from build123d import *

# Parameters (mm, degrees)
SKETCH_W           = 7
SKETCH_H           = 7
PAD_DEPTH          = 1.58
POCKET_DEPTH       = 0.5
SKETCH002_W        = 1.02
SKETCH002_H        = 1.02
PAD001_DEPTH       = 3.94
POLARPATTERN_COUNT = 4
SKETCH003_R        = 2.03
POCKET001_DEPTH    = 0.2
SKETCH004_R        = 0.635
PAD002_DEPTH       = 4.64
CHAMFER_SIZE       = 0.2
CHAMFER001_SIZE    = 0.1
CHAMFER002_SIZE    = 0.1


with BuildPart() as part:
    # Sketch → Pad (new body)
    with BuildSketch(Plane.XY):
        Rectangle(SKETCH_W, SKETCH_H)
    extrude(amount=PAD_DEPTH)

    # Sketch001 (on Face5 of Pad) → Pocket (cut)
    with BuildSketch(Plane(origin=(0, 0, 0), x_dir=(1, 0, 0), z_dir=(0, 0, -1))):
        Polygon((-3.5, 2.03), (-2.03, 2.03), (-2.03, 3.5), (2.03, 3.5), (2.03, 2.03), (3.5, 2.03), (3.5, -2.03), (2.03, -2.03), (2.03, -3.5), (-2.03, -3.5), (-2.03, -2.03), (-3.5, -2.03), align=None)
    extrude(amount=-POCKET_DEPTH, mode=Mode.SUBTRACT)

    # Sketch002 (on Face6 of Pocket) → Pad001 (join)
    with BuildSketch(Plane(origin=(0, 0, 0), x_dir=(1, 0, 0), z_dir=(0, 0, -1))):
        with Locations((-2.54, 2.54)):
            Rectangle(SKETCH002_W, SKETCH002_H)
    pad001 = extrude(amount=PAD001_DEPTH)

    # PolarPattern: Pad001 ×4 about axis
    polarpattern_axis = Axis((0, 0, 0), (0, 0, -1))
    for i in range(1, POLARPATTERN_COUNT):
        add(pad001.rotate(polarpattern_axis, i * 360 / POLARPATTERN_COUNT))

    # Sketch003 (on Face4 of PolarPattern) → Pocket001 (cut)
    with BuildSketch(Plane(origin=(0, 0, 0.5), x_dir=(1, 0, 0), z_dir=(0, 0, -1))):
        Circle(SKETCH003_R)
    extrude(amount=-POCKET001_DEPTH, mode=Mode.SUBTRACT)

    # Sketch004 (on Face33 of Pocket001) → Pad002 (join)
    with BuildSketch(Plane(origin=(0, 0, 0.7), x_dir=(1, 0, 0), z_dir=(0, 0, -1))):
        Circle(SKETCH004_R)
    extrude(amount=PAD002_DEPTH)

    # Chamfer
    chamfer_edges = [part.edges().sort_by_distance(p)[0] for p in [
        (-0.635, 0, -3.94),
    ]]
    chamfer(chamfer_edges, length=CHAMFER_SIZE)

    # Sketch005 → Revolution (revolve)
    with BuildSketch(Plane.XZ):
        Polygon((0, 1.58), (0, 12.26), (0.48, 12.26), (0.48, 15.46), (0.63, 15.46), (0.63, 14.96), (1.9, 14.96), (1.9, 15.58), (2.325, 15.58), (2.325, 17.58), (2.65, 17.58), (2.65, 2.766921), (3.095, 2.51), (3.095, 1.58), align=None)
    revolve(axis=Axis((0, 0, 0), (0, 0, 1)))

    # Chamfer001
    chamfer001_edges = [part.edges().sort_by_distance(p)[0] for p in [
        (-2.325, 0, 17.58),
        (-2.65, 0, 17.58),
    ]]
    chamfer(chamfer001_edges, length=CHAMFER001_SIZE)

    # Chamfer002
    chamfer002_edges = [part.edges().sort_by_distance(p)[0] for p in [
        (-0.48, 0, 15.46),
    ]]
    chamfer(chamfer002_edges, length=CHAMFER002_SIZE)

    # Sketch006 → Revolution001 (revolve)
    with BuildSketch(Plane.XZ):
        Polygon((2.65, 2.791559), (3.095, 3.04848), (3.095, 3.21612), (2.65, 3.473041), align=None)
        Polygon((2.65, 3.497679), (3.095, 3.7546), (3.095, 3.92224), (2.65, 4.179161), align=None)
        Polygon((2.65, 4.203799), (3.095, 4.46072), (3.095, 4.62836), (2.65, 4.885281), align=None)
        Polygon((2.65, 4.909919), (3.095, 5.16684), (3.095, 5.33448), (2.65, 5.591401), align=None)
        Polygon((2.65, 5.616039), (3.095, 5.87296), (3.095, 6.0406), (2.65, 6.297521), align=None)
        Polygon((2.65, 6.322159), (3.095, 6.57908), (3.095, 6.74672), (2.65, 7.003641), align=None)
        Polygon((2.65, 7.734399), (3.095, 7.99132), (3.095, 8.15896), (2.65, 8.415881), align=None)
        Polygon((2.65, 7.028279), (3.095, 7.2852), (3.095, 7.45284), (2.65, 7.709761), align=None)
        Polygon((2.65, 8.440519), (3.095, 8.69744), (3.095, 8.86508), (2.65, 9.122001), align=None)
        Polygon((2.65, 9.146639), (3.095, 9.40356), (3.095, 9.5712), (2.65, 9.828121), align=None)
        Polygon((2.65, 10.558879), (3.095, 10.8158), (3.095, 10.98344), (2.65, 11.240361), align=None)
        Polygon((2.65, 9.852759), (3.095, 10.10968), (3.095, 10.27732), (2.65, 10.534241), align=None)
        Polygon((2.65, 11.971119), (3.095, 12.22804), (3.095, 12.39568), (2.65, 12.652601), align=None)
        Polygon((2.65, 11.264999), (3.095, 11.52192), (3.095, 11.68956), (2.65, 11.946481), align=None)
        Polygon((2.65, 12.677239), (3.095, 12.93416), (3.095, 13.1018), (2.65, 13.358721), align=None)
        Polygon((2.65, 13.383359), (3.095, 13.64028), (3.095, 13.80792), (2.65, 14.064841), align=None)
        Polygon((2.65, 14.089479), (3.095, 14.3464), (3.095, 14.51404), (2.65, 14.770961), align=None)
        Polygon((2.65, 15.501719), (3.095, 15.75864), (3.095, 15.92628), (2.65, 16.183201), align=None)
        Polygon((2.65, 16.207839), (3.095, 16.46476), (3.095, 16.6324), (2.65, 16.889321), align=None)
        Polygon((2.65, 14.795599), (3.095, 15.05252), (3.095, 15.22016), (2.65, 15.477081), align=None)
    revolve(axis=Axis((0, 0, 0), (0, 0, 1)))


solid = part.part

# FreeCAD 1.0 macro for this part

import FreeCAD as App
import Part
import Sketcher

V = App.Vector
Q = App.Units.Quantity


def edges_at(feature, points):
    """Names of the edges that pass closest to the given points."""
    edges = feature.Shape.Edges
    near = lambda p: min(range(len(edges)), key=lambda i: edges[i].distToShape(Part.Vertex(*p))[0])
    return sorted({f"Edge{near(p) + 1}" for p in points})


def add_polygon(sketch, points):
    """Adds a closed chain of lines whose ends are joined by coincident constraints."""
    first, n = sketch.GeometryCount, len(points)
    for a, b in zip(points, points[1:] + points[:1]):
        sketch.addGeometry(Part.LineSegment(App.Vector(*a, 0), App.Vector(*b, 0)), False)
    for i in range(n):
        sketch.addConstraint(Sketcher.Constraint("Coincident", first + i, 2, first + (i + 1) % n, 1))

doc = App.newDocument("Part")
params = doc.addObject("Spreadsheet::Sheet", "Params")
for row, (alias, value) in enumerate([
    ("sketch1_width", "7 mm"),
    ("pad1_length", "1.58 mm"),
    ("sketch2_width", "1.47 mm"),
    ("pocket1_length", "0.5 mm"),
    ("sketch3_width", "1.02 mm"),
    ("pad2_length", "3.94 mm"),
    ("sketch4_diameter", "4.06 mm"),
    ("pocket2_length", "0.2 mm"),
    ("sketch5_diameter", "1.27 mm"),
    ("pad3_length", "4.64 mm"),
    ("chamfer_size", "0.2 mm"),
    ("sketch6_height", "2 mm"),
    ("sketch6_height2", "0.5 mm"),
    ("sketch6_height3", "3.2 mm"),
    ("sketch6_width", "1.27 mm"),
    ("sketch6_width2", "0.15 mm"),
    ("revolution_angle", "360 deg"),
    ("chamfer2_size", "0.1 mm"),
    ("chamfer3_size", "0.1 mm"),
    ("revolution2_angle", "360 deg"),
], start=1):
    params.set(f"A{row}", alias)
    params.set(f"B{row}", "=" + value)
    params.setAlias(f"B{row}", alias)

body = doc.addObject("PartDesign::Body", "Body")

# Sketch on XY plane
sketch1 = doc.addObject("Sketcher::SketchObject", "Sketch")
body.addObject(sketch1)
sketch1.AttachmentSupport = (doc.XY_Plane, [""])
sketch1.MapMode = "FlatFace"
add_polygon(sketch1, [(-4, 4), (-4, -4), (4, -4), (4, 4)])  # lines 0-3
sketch1.addConstraint([
    Sketcher.Constraint("Vertical", 0),
    Sketcher.Constraint("Horizontal", 1),
    Sketcher.Constraint("Vertical", 2),
    Sketcher.Constraint("Horizontal", 3),
    Sketcher.Constraint("Symmetric", 0, 2, 2, 2, -1, 1),
    Sketcher.Constraint("Equal", 3, 0),
    Sketcher.Constraint("DistanceX", 1, 1, 1, 2, 7.0),
])
sketch1.setExpression("Constraints[10]", "Params.sketch1_width")
pad1 = doc.addObject("PartDesign::Pad", "Pad")
body.addObject(pad1)
pad1.Profile = sketch1
pad1.setExpression("Length", "Params.pad1_length")

# Sketch on XY plane
sketch2 = doc.addObject("Sketcher::SketchObject", "Sketch001")
body.addObject(sketch2)
sketch2.AttachmentSupport = (doc.XY_Plane, [""])
sketch2.MapMode = "FlatFace"
add_polygon(sketch2, [(-2, -2), (-3.5, -2), (-3.5, 2), (-2, 2), (-2, 3.5), (2, 3.5), (2, 2), (3.5, 2), (3.5, -2), (2, -2), (2, -3.5), (-2, -3.5)])  # lines 0-11
sketch2.addConstraint([
    Sketcher.Constraint("Horizontal", 0),
    Sketcher.Constraint("Vertical", 1),
    Sketcher.Constraint("Horizontal", 2),
    Sketcher.Constraint("Vertical", 3),
    Sketcher.Constraint("Horizontal", 4),
    Sketcher.Constraint("Vertical", 5),
    Sketcher.Constraint("Horizontal", 6),
    Sketcher.Constraint("Vertical", 7),
    Sketcher.Constraint("Horizontal", 8),
    Sketcher.Constraint("Vertical", 9),
    Sketcher.Constraint("Horizontal", 10),
    Sketcher.Constraint("Vertical", 11),
    Sketcher.Constraint("Symmetric", 0, 2, 6, 2, -1, 1),
    Sketcher.Constraint("Symmetric", 2, 2, 8, 2, -1, 1),
    Sketcher.Constraint("Symmetric", 4, 2, 10, 2, -1, 1),
    Sketcher.Constraint("Symmetric", 2, 2, 5, 2, -2),
    Sketcher.Constraint("Equal", 10, 1),
    Sketcher.Constraint("Equal", 8, 3),
    Sketcher.Constraint("DistanceX", 1, 2, 6, 2, 7.0),
    Sketcher.Constraint("DistanceX", 0, 2, 0, 1, 1.47),
])
sketch2.setExpression("Constraints[31]", "Params.sketch2_width")
pocket1 = doc.addObject("PartDesign::Pocket", "Pocket")
body.addObject(pocket1)
pocket1.Profile = sketch2
pocket1.setExpression("Length", "Params.pocket1_length")
pocket1.Reversed = True

# Sketch on XY plane
sketch3 = doc.addObject("Sketcher::SketchObject", "Sketch002")
body.addObject(sketch3)
sketch3.AttachmentSupport = (doc.XY_Plane, [""])
sketch3.MapMode = "FlatFace"
add_polygon(sketch3, [(-3, -3), (-3, -2), (-2, -2), (-2, -3)])  # lines 0-3
sketch3.addConstraint([
    Sketcher.Constraint("Vertical", 0),
    Sketcher.Constraint("Horizontal", 1),
    Sketcher.Constraint("Vertical", 2),
    Sketcher.Constraint("Horizontal", 3),
    Sketcher.Constraint("Equal", 3, 0),
    Sketcher.Constraint("DistanceX", 1, 1, 1, 2, 1.02),
    Sketcher.Constraint("DistanceX", 0, 2, -1, 1, 3.05),
    Sketcher.Constraint("DistanceY", 0, 2, -1, 1, 2.03),
])
sketch3.setExpression("Constraints[9]", "Params.sketch3_width")
pad2 = doc.addObject("PartDesign::Pad", "Pad001")
body.addObject(pad2)
pad2.Profile = sketch3
pad2.setExpression("Length", "Params.pad2_length")
pad2.Reversed = True
doc.recompute()

polarpattern = doc.addObject("PartDesign::PolarPattern", "PolarPattern")
body.addObject(polarpattern)
polarpattern.Originals = [pad2]
polarpattern.Axis = (doc.Z_Axis, [""])
polarpattern.Angle = 360
polarpattern.Occurrences = 4
body.Tip = polarpattern

# Sketch on XY plane
sketch4 = doc.addObject("Sketcher::SketchObject", "Sketch003")
body.addObject(sketch4)
sketch4.AttachmentSupport = (doc.XY_Plane, [""])
sketch4.MapMode = "FlatFace"
sketch4.AttachmentOffset = App.Placement(V(0, 0, 0.5), App.Rotation())
sketch4.addGeometry(Part.Circle(V(0, 0, 0), V(0, 0, 1), 2), False)
sketch4.addConstraint([
    Sketcher.Constraint("Coincident", 0, 3, -1, 1),
    Sketcher.Constraint("Diameter", 0, 4.06),
])
sketch4.setExpression("Constraints[1]", "Params.sketch4_diameter")
pocket2 = doc.addObject("PartDesign::Pocket", "Pocket001")
body.addObject(pocket2)
pocket2.Profile = sketch4
pocket2.setExpression("Length", "Params.pocket2_length")
pocket2.Reversed = True

# Sketch on XY plane
sketch5 = doc.addObject("Sketcher::SketchObject", "Sketch004")
body.addObject(sketch5)
sketch5.AttachmentSupport = (doc.XY_Plane, [""])
sketch5.MapMode = "FlatFace"
sketch5.AttachmentOffset = App.Placement(V(0, 0, 0.7), App.Rotation())
sketch5.addGeometry(Part.Circle(V(0, 0, 0), V(0, 0, 1), 0.6), False)
sketch5.addConstraint([
    Sketcher.Constraint("Coincident", 0, 3, -1, 1),
    Sketcher.Constraint("Diameter", 0, 1.27),
])
sketch5.setExpression("Constraints[1]", "Params.sketch5_diameter")
pad3 = doc.addObject("PartDesign::Pad", "Pad002")
body.addObject(pad3)
pad3.Profile = sketch5
pad3.setExpression("Length", "Params.pad3_length")
pad3.Reversed = True
doc.recompute()

chamfer = doc.addObject("PartDesign::Chamfer", "Chamfer")
body.addObject(chamfer)
chamfer.Base = (pad3, edges_at(pad3, [(-0.635, 0, -3.94)]))
chamfer.setExpression("Size", "Params.chamfer_size")

# Sketch on XZ plane
sketch6 = doc.addObject("Sketcher::SketchObject", "Sketch005")
body.addObject(sketch6)
sketch6.AttachmentSupport = (doc.XZ_Plane, [""])
sketch6.MapMode = "FlatFace"
add_polygon(sketch6, [(0, 12.26), (0, 1.58), (3.1, 1.58), (3.1, 2.51), (2.65, 2.77), (2.65, 17.58), (2.33, 17.58), (2.33, 15.58), (1.9, 15.58), (1.9, 14.96), (0.63, 14.96), (0.63, 15.46), (0.48, 15.46), (0.48, 12.26)])  # lines 0-13
sketch6.addConstraint([
    Sketcher.Constraint("Vertical", 0),
    Sketcher.Constraint("Horizontal", 1),
    Sketcher.Constraint("Vertical", 2),
    Sketcher.Constraint("Vertical", 4),
    Sketcher.Constraint("Horizontal", 5),
    Sketcher.Constraint("Vertical", 6),
    Sketcher.Constraint("Horizontal", 7),
    Sketcher.Constraint("Vertical", 8),
    Sketcher.Constraint("Horizontal", 9),
    Sketcher.Constraint("Vertical", 10),
    Sketcher.Constraint("Horizontal", 11),
    Sketcher.Constraint("Vertical", 12),
    Sketcher.Constraint("Horizontal", 13),
    Sketcher.Constraint("PointOnObject", 0, 2, -2),
    Sketcher.Constraint("DistanceY", 6, 2, 6, 1, 2.0),
    Sketcher.Constraint("Angle", 3, Q("149.999987 deg")),
    Sketcher.Constraint("DistanceY", 10, 1, 10, 2, 0.5),
    Sketcher.Constraint("DistanceY", 12, 2, 12, 1, 3.2),
    Sketcher.Constraint("DistanceY", 1, 2, 4, 2, 16.0),
    Sketcher.Constraint("DistanceX", 9, 2, 9, 1, 1.27),
    Sketcher.Constraint("DistanceX", 11, 2, 11, 1, 0.15),
    Sketcher.Constraint("DistanceX", 13, 2, 13, 1, 0.48),
    Sketcher.Constraint("DistanceY", 0, 2, 0, 1, 10.68),
    Sketcher.Constraint("DistanceY", 2, 1, 2, 2, 0.93),
    Sketcher.Constraint("DistanceX", 1, 1, 1, 2, 3.095),
    Sketcher.Constraint("DistanceX", 5, 2, 5, 1, 0.325),
    Sketcher.Constraint("DistanceX", 7, 2, 7, 1, 0.425),
    Sketcher.Constraint("DistanceY", -1, 1, 0, 2, 1.58),
])
sketch6.setExpression("Constraints[28]", "Params.sketch6_height")
sketch6.setExpression("Constraints[30]", "Params.sketch6_height2")
sketch6.setExpression("Constraints[31]", "Params.sketch6_height3")
sketch6.setExpression("Constraints[33]", "Params.sketch6_width")
sketch6.setExpression("Constraints[34]", "Params.sketch6_width2")
revolution = doc.addObject("PartDesign::Revolution", "Revolution")
body.addObject(revolution)
revolution.Profile = sketch6
revolution.ReferenceAxis = (sketch6, ["V_Axis"])
revolution.setExpression("Angle", "Params.revolution_angle")
doc.recompute()

chamfer2 = doc.addObject("PartDesign::Chamfer", "Chamfer001")
body.addObject(chamfer2)
chamfer2.Base = (revolution, edges_at(revolution, [(-2.325, 0, 17.58), (-2.65, 0, 17.58)]))
chamfer2.setExpression("Size", "Params.chamfer2_size")
doc.recompute()

chamfer3 = doc.addObject("PartDesign::Chamfer", "Chamfer002")
body.addObject(chamfer3)
chamfer3.Base = (chamfer2, edges_at(chamfer2, [(-0.48, 0, 15.46)]))
chamfer3.setExpression("Size", "Params.chamfer3_size")

# Sketch on XZ plane
sketch7 = doc.addObject("Sketcher::SketchObject", "Sketch006")
body.addObject(sketch7)
sketch7.AttachmentSupport = (doc.XZ_Plane, [""])
sketch7.MapMode = "FlatFace"
add_polygon(sketch7, [(2.65, 2.79), (3.1, 3.05), (3.1, 3.22), (2.65, 3.47)])  # lines 0-3
add_polygon(sketch7, [(2.65, 3.5), (3.1, 3.75), (3.1, 3.92), (2.65, 4.18)])  # lines 4-7
add_polygon(sketch7, [(2.65, 4.2), (3.1, 4.46), (3.1, 4.63), (2.65, 4.89)])  # lines 8-11
add_polygon(sketch7, [(2.65, 4.91), (3.1, 5.17), (3.1, 5.33), (2.65, 5.59)])  # lines 12-15
add_polygon(sketch7, [(2.65, 5.62), (3.1, 5.87), (3.1, 6.04), (2.65, 6.3)])  # lines 16-19
add_polygon(sketch7, [(2.65, 6.32), (3.1, 6.58), (3.1, 6.75), (2.65, 7)])  # lines 20-23
add_polygon(sketch7, [(2.65, 7.73), (3.1, 7.99), (3.1, 8.16), (2.65, 8.42)])  # lines 24-27
add_polygon(sketch7, [(2.65, 7.03), (3.1, 7.29), (3.1, 7.45), (2.65, 7.71)])  # lines 28-31
add_polygon(sketch7, [(2.65, 8.44), (3.1, 8.7), (3.1, 8.87), (2.65, 9.12)])  # lines 32-35
add_polygon(sketch7, [(2.65, 9.15), (3.1, 9.4), (3.1, 9.57), (2.65, 9.83)])  # lines 36-39
add_polygon(sketch7, [(2.65, 10.56), (3.1, 10.82), (3.1, 10.98), (2.65, 11.24)])  # lines 40-43
add_polygon(sketch7, [(2.65, 9.85), (3.1, 10.11), (3.1, 10.28), (2.65, 10.53)])  # lines 44-47
add_polygon(sketch7, [(2.65, 11.97), (3.1, 12.23), (3.1, 12.4), (2.65, 12.65)])  # lines 48-51
add_polygon(sketch7, [(2.65, 11.26), (3.1, 11.52), (3.1, 11.69), (2.65, 11.95)])  # lines 52-55
add_polygon(sketch7, [(2.65, 12.68), (3.1, 12.93), (3.1, 13.1), (2.65, 13.36)])  # lines 56-59
add_polygon(sketch7, [(2.65, 13.38), (3.1, 13.64), (3.1, 13.81), (2.65, 14.06)])  # lines 60-63
add_polygon(sketch7, [(2.65, 14.09), (3.1, 14.35), (3.1, 14.51), (2.65, 14.77)])  # lines 64-67
add_polygon(sketch7, [(2.65, 15.5), (3.1, 15.76), (3.1, 15.93), (2.65, 16.18)])  # lines 68-71
add_polygon(sketch7, [(2.65, 16.21), (3.1, 16.46), (3.1, 16.63), (2.65, 16.89)])  # lines 72-75
add_polygon(sketch7, [(2.65, 14.8), (3.1, 15.05), (3.1, 15.22), (2.65, 15.48)])  # lines 76-79
sketch7.addConstraint([
    Sketcher.Constraint("Vertical", 1),
    Sketcher.Constraint("Vertical", 3),
    Sketcher.Constraint("Vertical", 5),
    Sketcher.Constraint("Vertical", 7),
    Sketcher.Constraint("Vertical", 9),
    Sketcher.Constraint("Vertical", 11),
    Sketcher.Constraint("Vertical", 13),
    Sketcher.Constraint("Vertical", 15),
    Sketcher.Constraint("Vertical", 17),
    Sketcher.Constraint("Vertical", 19),
    Sketcher.Constraint("Vertical", 21),
    Sketcher.Constraint("Vertical", 23),
    Sketcher.Constraint("Vertical", 25),
    Sketcher.Constraint("Vertical", 27),
    Sketcher.Constraint("Vertical", 29),
    Sketcher.Constraint("Vertical", 31),
    Sketcher.Constraint("Vertical", 33),
    Sketcher.Constraint("Vertical", 35),
    Sketcher.Constraint("Vertical", 37),
    Sketcher.Constraint("Vertical", 39),
    Sketcher.Constraint("Vertical", 41),
    Sketcher.Constraint("Vertical", 43),
    Sketcher.Constraint("Vertical", 45),
    Sketcher.Constraint("Vertical", 47),
    Sketcher.Constraint("Vertical", 49),
    Sketcher.Constraint("Vertical", 51),
    Sketcher.Constraint("Vertical", 53),
    Sketcher.Constraint("Vertical", 55),
    Sketcher.Constraint("Vertical", 57),
    Sketcher.Constraint("Vertical", 59),
    Sketcher.Constraint("Vertical", 61),
    Sketcher.Constraint("Vertical", 63),
    Sketcher.Constraint("Vertical", 65),
    Sketcher.Constraint("Vertical", 67),
    Sketcher.Constraint("Vertical", 69),
    Sketcher.Constraint("Vertical", 71),
    Sketcher.Constraint("Vertical", 73),
    Sketcher.Constraint("Vertical", 75),
    Sketcher.Constraint("Vertical", 77),
    Sketcher.Constraint("Vertical", 79),
    Sketcher.Constraint("Parallel", 0, 4),
    Sketcher.Constraint("Parallel", 2, 6),
    Sketcher.Constraint("Parallel", 4, 8),
    Sketcher.Constraint("Parallel", 6, 10),
    Sketcher.Constraint("Parallel", 8, 12),
    Sketcher.Constraint("Parallel", 10, 14),
    Sketcher.Constraint("Parallel", 12, 16),
    Sketcher.Constraint("Parallel", 14, 18),
    Sketcher.Constraint("Parallel", 16, 20),
    Sketcher.Constraint("Parallel", 18, 22),
    Sketcher.Constraint("Parallel", 20, 24),
    Sketcher.Constraint("Parallel", 22, 26),
    Sketcher.Constraint("Parallel", 24, 28),
    Sketcher.Constraint("Parallel", 26, 30),
    Sketcher.Constraint("Parallel", 28, 32),
    Sketcher.Constraint("Parallel", 30, 34),
    Sketcher.Constraint("Parallel", 32, 36),
    Sketcher.Constraint("Parallel", 34, 38),
    Sketcher.Constraint("Parallel", 36, 40),
    Sketcher.Constraint("Parallel", 38, 42),
    Sketcher.Constraint("Parallel", 40, 44),
    Sketcher.Constraint("Parallel", 42, 46),
    Sketcher.Constraint("Parallel", 44, 48),
    Sketcher.Constraint("Parallel", 46, 50),
    Sketcher.Constraint("Parallel", 48, 52),
    Sketcher.Constraint("Parallel", 50, 54),
    Sketcher.Constraint("Parallel", 52, 56),
    Sketcher.Constraint("Parallel", 54, 58),
    Sketcher.Constraint("Parallel", 56, 60),
    Sketcher.Constraint("Parallel", 58, 62),
    Sketcher.Constraint("Parallel", 60, 64),
    Sketcher.Constraint("Parallel", 62, 66),
    Sketcher.Constraint("Parallel", 64, 68),
    Sketcher.Constraint("Parallel", 66, 70),
    Sketcher.Constraint("Parallel", 68, 72),
    Sketcher.Constraint("Parallel", 70, 74),
    Sketcher.Constraint("Parallel", 72, 76),
    Sketcher.Constraint("Parallel", 74, 78),
    Sketcher.Constraint("Vertical", 1, 2, 4, 2),
    Sketcher.Constraint("Vertical", 3, 2, 6, 2),
    Sketcher.Constraint("Vertical", 5, 2, 8, 2),
    Sketcher.Constraint("Vertical", 7, 2, 10, 2),
    Sketcher.Constraint("Vertical", 9, 2, 12, 2),
    Sketcher.Constraint("Vertical", 11, 2, 14, 2),
    Sketcher.Constraint("Vertical", 13, 2, 16, 2),
    Sketcher.Constraint("Vertical", 15, 2, 18, 2),
    Sketcher.Constraint("Vertical", 17, 2, 20, 2),
    Sketcher.Constraint("Vertical", 19, 2, 22, 2),
    Sketcher.Constraint("Vertical", 21, 2, 24, 2),
    Sketcher.Constraint("Vertical", 23, 2, 26, 2),
    Sketcher.Constraint("Vertical", 25, 2, 28, 2),
    Sketcher.Constraint("Vertical", 27, 2, 30, 2),
    Sketcher.Constraint("Vertical", 29, 2, 32, 2),
    Sketcher.Constraint("Vertical", 31, 2, 34, 2),
    Sketcher.Constraint("Vertical", 33, 2, 36, 2),
    Sketcher.Constraint("Vertical", 35, 2, 38, 2),
    Sketcher.Constraint("Vertical", 37, 2, 40, 2),
    Sketcher.Constraint("Vertical", 39, 2, 42, 2),
    Sketcher.Constraint("Vertical", 41, 2, 44, 2),
    Sketcher.Constraint("Vertical", 43, 2, 46, 2),
    Sketcher.Constraint("Vertical", 45, 2, 48, 2),
    Sketcher.Constraint("Vertical", 47, 2, 50, 2),
    Sketcher.Constraint("Vertical", 49, 2, 52, 2),
    Sketcher.Constraint("Vertical", 51, 2, 54, 2),
    Sketcher.Constraint("Vertical", 53, 2, 56, 2),
    Sketcher.Constraint("Vertical", 55, 2, 58, 2),
    Sketcher.Constraint("Vertical", 57, 2, 60, 2),
    Sketcher.Constraint("Vertical", 59, 2, 62, 2),
    Sketcher.Constraint("Vertical", 61, 2, 64, 2),
    Sketcher.Constraint("Vertical", 63, 2, 66, 2),
    Sketcher.Constraint("Vertical", 65, 2, 68, 2),
    Sketcher.Constraint("Vertical", 67, 2, 70, 2),
    Sketcher.Constraint("Vertical", 69, 2, 72, 2),
    Sketcher.Constraint("Vertical", 71, 2, 74, 2),
    Sketcher.Constraint("Vertical", 73, 2, 76, 2),
    Sketcher.Constraint("Vertical", 75, 2, 78, 2),
    Sketcher.Constraint("Equal", 1, 5),
    Sketcher.Constraint("Equal", 5, 9),
    Sketcher.Constraint("Equal", 9, 13),
    Sketcher.Constraint("Equal", 13, 17),
    Sketcher.Constraint("Equal", 17, 21),
    Sketcher.Constraint("Equal", 21, 25),
    Sketcher.Constraint("Equal", 25, 29),
    Sketcher.Constraint("Equal", 29, 33),
    Sketcher.Constraint("Equal", 33, 37),
    Sketcher.Constraint("Equal", 37, 41),
    Sketcher.Constraint("Equal", 41, 45),
    Sketcher.Constraint("Equal", 45, 49),
    Sketcher.Constraint("Equal", 49, 53),
    Sketcher.Constraint("Equal", 53, 57),
    Sketcher.Constraint("Equal", 57, 61),
    Sketcher.Constraint("Equal", 61, 65),
    Sketcher.Constraint("Equal", 65, 69),
    Sketcher.Constraint("Equal", 69, 73),
    Sketcher.Constraint("Equal", 73, 77),
    Sketcher.Constraint("Equal", 0, 2),
    Sketcher.Constraint("Angle", 0, Q("30.000013 deg")),
    Sketcher.Constraint("DistanceX", -1, 1, 2, 2, 2.65),
    Sketcher.Constraint("DistanceX", -1, 1, 0, 2, 3.095),
    Sketcher.Constraint("DistanceY", -1, 1, 34, 2, 9.122001),
    Sketcher.Constraint("DistanceY", -1, 1, 55, 2, 11.264999),
    Sketcher.Constraint("DistanceY", 1, 1, 1, 2, 0.16764),
    Sketcher.Constraint("DistanceY", -1, 1, 4, 2, 3.7546),
    Sketcher.Constraint("DistanceY", -1, 1, 11, 2, 4.203799),
    Sketcher.Constraint("DistanceY", -1, 1, 14, 2, 5.591401),
    Sketcher.Constraint("DistanceY", -1, 1, 17, 2, 6.0406),
    Sketcher.Constraint("DistanceY", -1, 1, 27, 2, 7.734399),
    Sketcher.Constraint("DistanceY", -1, 1, 28, 2, 7.2852),
    Sketcher.Constraint("DistanceY", -1, 1, 37, 2, 9.5712),
    Sketcher.Constraint("DistanceY", -1, 1, 40, 2, 10.8158),
    Sketcher.Constraint("DistanceY", -1, 1, 50, 2, 12.652601),
    Sketcher.Constraint("DistanceY", -1, 1, 57, 2, 13.1018),
    Sketcher.Constraint("DistanceY", -1, 1, 64, 2, 14.3464),
    Sketcher.Constraint("DistanceY", -1, 1, 70, 2, 16.183201),
    Sketcher.Constraint("DistanceY", -1, 1, 73, 2, 16.6324),
    Sketcher.Constraint("DistanceY", -1, 1, 79, 2, 14.795599),
    Sketcher.Constraint("DistanceY", -1, 1, 0, 2, 3.04848),
    Sketcher.Constraint("DistanceY", -1, 1, 20, 2, 6.57908),
    Sketcher.Constraint("DistanceY", -1, 1, 44, 2, 10.10968),
    Sketcher.Constraint("DistanceY", -1, 1, 60, 2, 13.64028),
])
revolution2 = doc.addObject("PartDesign::Revolution", "Revolution001")
body.addObject(revolution2)
revolution2.Profile = sketch7
revolution2.ReferenceAxis = (sketch7, ["V_Axis"])
revolution2.setExpression("Angle", "Params.revolution2_angle")

doc.recompute()
